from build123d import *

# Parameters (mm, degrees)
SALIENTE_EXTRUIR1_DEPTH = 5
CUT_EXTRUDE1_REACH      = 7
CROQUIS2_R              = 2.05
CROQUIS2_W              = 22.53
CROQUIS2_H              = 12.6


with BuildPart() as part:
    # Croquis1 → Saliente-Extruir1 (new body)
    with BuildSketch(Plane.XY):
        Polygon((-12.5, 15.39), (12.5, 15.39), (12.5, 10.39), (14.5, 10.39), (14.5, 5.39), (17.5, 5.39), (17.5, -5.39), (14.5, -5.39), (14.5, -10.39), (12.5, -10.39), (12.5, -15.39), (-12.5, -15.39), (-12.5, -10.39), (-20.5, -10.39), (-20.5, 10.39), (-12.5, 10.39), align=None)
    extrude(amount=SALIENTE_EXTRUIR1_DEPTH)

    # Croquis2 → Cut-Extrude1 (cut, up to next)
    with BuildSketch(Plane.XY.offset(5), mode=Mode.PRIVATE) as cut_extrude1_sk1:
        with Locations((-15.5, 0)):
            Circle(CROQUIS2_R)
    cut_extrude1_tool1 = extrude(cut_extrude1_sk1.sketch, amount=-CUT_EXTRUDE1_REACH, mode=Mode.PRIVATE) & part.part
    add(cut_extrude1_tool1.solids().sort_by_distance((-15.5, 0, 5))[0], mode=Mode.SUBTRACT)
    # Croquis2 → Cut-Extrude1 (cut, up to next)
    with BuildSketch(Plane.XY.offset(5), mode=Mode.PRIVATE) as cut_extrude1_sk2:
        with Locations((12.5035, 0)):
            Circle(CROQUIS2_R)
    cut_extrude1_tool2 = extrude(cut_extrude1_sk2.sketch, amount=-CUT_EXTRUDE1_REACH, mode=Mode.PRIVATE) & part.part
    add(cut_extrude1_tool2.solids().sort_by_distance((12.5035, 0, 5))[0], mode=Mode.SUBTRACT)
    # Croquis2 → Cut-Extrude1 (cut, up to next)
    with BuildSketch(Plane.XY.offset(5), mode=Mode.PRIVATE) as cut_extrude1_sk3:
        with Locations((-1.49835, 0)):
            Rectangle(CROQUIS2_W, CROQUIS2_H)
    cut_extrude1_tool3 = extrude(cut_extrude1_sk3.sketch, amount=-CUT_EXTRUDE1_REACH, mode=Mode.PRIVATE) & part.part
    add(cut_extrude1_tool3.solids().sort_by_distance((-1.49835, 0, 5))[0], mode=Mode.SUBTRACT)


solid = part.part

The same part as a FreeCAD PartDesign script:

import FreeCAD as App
import Part
import Sketcher

V = App.Vector
Q = App.Units.Quantity

doc = App.newDocument("Part")
body = doc.addObject("PartDesign::Body", "Body")

sketch1 = body.newObject("Sketcher::SketchObject", "Sketch")
sketch1.AttachmentSupport = (doc.getObject("XY_Plane"), [""])
sketch1.MapMode = "FlatFace"
sketch1.addGeometry([
    Part.LineSegment(V(12.5, 15.4, 0), V(-12.5, 15.4, 0)),
    Part.LineSegment(V(-12.5, 15.4, 0), V(-12.5, 10.4, 0)),
    Part.LineSegment(V(-12.5, 10.4, 0), V(-20.5, 10.4, 0)),
    Part.LineSegment(V(-20.5, 10.4, 0), V(-20.5, -10.4, 0)),
    Part.LineSegment(V(-20.5, -10.4, 0), V(-12.5, -10.4, 0)),
    Part.LineSegment(V(-12.5, -10.4, 0), V(-12.5, -15.4, 0)),
    Part.LineSegment(V(-12.5, -15.4, 0), V(12.5, -15.4, 0)),
    Part.LineSegment(V(12.5, -15.4, 0), V(12.5, -10.4, 0)),
    Part.LineSegment(V(12.5, -10.4, 0), V(14.5, -10.4, 0)),
    Part.LineSegment(V(14.5, -10.4, 0), V(14.5, -5.4, 0)),
    Part.LineSegment(V(14.5, -5.4, 0), V(17.5, -5.4, 0)),
    Part.LineSegment(V(17.5, -5.4, 0), V(17.5, 5.4, 0)),
    Part.LineSegment(V(17.5, 5.4, 0), V(14.5, 5.4, 0)),
    Part.LineSegment(V(14.5, 5.4, 0), V(14.5, 10.4, 0)),
    Part.LineSegment(V(14.5, 10.4, 0), V(12.5, 10.4, 0)),
    Part.LineSegment(V(12.5, 10.4, 0), V(12.5, 15.4, 0)),
], False)
sketch1.addConstraint([
    Sketcher.Constraint("Coincident", 0, 2, 1, 1),
    Sketcher.Constraint("Coincident", 1, 2, 2, 1),
    Sketcher.Constraint("Coincident", 2, 2, 3, 1),
    Sketcher.Constraint("Coincident", 3, 2, 4, 1),
    Sketcher.Constraint("Coincident", 4, 2, 5, 1),
    Sketcher.Constraint("Coincident", 5, 2, 6, 1),
    Sketcher.Constraint("Coincident", 6, 2, 7, 1),
    Sketcher.Constraint("Coincident", 7, 2, 8, 1),
    Sketcher.Constraint("Coincident", 8, 2, 9, 1),
    Sketcher.Constraint("Coincident", 9, 2, 10, 1),
    Sketcher.Constraint("Coincident", 10, 2, 11, 1),
    Sketcher.Constraint("Coincident", 11, 2, 12, 1),
    Sketcher.Constraint("Coincident", 12, 2, 13, 1),
    Sketcher.Constraint("Coincident", 13, 2, 14, 1),
    Sketcher.Constraint("Coincident", 14, 2, 15, 1),
    Sketcher.Constraint("Coincident", 15, 2, 0, 1),
    Sketcher.Constraint("Horizontal", 0),
    Sketcher.Constraint("Vertical", 1),
    Sketcher.Constraint("Horizontal", 2),
    Sketcher.Constraint("Vertical", 3),
    Sketcher.Constraint("Horizontal", 4),
    Sketcher.Constraint("Vertical", 5),
    Sketcher.Constraint("Horizontal", 6),
    Sketcher.Constraint("Vertical", 7),
    Sketcher.Constraint("Horizontal", 8),
    Sketcher.Constraint("Vertical", 9),
    Sketcher.Constraint("Horizontal", 10),
    Sketcher.Constraint("Vertical", 11),
    Sketcher.Constraint("Horizontal", 12),
    Sketcher.Constraint("Vertical", 13),
    Sketcher.Constraint("Horizontal", 14),
    Sketcher.Constraint("Vertical", 15),
    Sketcher.Constraint("Symmetric", 0, 2, 6, 2, -1, 1),
    Sketcher.Constraint("Symmetric", 4, 2, 14, 2, -1, 1),
    Sketcher.Constraint("Symmetric", 4, 2, 7, 2, -2),
    Sketcher.Constraint("Symmetric", 9, 2, 12, 2, -1),
    Sketcher.Constraint("Horizontal", 2, 2, 13, 2),
    Sketcher.Constraint("Equal", 7, 9),
    Sketcher.Constraint("DistanceX", 0, 2, 0, 1, Q("25 mm")),
    Sketcher.Constraint("DistanceX", 2, 2, 2, 1, Q("8 mm")),
    Sketcher.Constraint("DistanceX", 8, 1, 8, 2, Q("2 mm")),
    Sketcher.Constraint("DistanceX", 10, 1, 10, 2, Q("3 mm")),
    Sketcher.Constraint("DistanceY", 1, 2, 1, 1, Q("5 mm")),
    Sketcher.Constraint("DistanceY", 3, 2, 3, 1, Q("20.78 mm")),
])
pad1 = body.newObject("PartDesign::Pad", "Pad")
pad1.Profile = sketch1
pad1.Length = 5

sketch2 = body.newObject("Sketcher::SketchObject", "Sketch001")
sketch2.AttachmentSupport = (doc.getObject("XY_Plane"), [""])
sketch2.MapMode = "FlatFace"
sketch2.AttachmentOffset = App.Placement(V(0, 0, 5), App.Rotation())
sketch2.addGeometry(Part.Circle(V(-15.5, 0, 0), V(0, 0, 1), 2), False)
sketch2.addConstraint([
    Sketcher.Constraint("PointOnObject", 0, 3, -1),
    Sketcher.Constraint("Diameter", 0, Q("4.1 mm")),
    Sketcher.Constraint("DistanceX", 0, 3, -1, 1, Q("15.5 mm")),
])
pocket1 = body.newObject("PartDesign::Pocket", "Pocket")
pocket1.Profile = sketch2
pocket1.Type = "UpToFirst"

sketch3 = body.newObject("Sketcher::SketchObject", "Sketch002")
sketch3.AttachmentSupport = (doc.getObject("XY_Plane"), [""])
sketch3.MapMode = "FlatFace"
sketch3.AttachmentOffset = App.Placement(V(0, 0, 5), App.Rotation())
sketch3.addGeometry(Part.Circle(V(12.5, 0, 0), V(0, 0, 1), 2), False)
sketch3.addConstraint([
    Sketcher.Constraint("PointOnObject", 0, 3, -1),
    Sketcher.Constraint("Diameter", 0, Q("4.1 mm")),
    Sketcher.Constraint("DistanceX", -1, 1, 0, 3, Q("12.5035 mm")),
])
pocket2 = body.newObject("PartDesign::Pocket", "Pocket001")
pocket2.Profile = sketch3
pocket2.Type = "UpToFirst"

sketch4 = body.newObject("Sketcher::SketchObject", "Sketch003")
sketch4.AttachmentSupport = (doc.getObject("XY_Plane"), [""])
sketch4.MapMode = "FlatFace"
sketch4.AttachmentOffset = App.Placement(V(0, 0, 5), App.Rotation())
sketch4.addGeometry([
    Part.LineSegment(V(-13, 6, 0), V(-13, -6, 0)),
    Part.LineSegment(V(-13, -6, 0), V(10, -6, 0)),
    Part.LineSegment(V(10, -6, 0), V(10, 6, 0)),
    Part.LineSegment(V(10, 6, 0), V(-13, 6, 0)),
], False)
sketch4.addConstraint([
    Sketcher.Constraint("Coincident", 0, 2, 1, 1),
    Sketcher.Constraint("Coincident", 1, 2, 2, 1),
    Sketcher.Constraint("Coincident", 2, 2, 3, 1),
    Sketcher.Constraint("Coincident", 3, 2, 0, 1),
    Sketcher.Constraint("Vertical", 0),
    Sketcher.Constraint("Horizontal", 1),
    Sketcher.Constraint("Vertical", 2),
    Sketcher.Constraint("Horizontal", 3),
    Sketcher.Constraint("DistanceY", 0, 2, 0, 1, Q("12.6 mm")),
    Sketcher.Constraint("DistanceX", 1, 1, 1, 2, Q("22.53 mm")),
    Sketcher.Constraint("DistanceY", 0, 2, -1, 1, Q("6.3 mm")),
    Sketcher.Constraint("DistanceX", 0, 2, -1, 1, Q("12.76335 mm")),
])
pocket3 = body.newObject("PartDesign::Pocket", "Pocket002")
pocket3.Profile = sketch4
pocket3.Type = "UpToFirst"

doc.recompute()
